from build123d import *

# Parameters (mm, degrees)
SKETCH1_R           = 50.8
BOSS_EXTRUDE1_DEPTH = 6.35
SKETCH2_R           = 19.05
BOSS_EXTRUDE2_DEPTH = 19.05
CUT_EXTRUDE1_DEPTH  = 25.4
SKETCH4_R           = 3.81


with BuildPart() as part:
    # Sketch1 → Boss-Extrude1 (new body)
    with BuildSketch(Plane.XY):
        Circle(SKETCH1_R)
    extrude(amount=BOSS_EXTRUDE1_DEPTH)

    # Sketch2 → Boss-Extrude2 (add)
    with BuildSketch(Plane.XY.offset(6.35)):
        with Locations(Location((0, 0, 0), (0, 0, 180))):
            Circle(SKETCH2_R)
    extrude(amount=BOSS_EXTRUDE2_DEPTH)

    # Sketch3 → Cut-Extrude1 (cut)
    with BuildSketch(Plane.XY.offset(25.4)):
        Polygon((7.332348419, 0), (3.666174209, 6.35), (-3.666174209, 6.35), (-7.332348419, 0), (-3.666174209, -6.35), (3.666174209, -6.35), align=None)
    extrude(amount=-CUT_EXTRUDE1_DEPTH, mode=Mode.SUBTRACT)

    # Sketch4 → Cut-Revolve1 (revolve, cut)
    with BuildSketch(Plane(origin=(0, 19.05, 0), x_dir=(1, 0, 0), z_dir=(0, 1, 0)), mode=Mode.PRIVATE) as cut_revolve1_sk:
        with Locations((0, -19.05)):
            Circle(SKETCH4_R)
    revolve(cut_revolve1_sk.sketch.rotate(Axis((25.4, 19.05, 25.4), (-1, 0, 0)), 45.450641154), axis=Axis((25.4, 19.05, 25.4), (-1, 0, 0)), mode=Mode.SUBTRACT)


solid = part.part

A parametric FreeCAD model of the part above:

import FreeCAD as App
import Part
import Sketcher
Q = App.Units.Quantity


def add_polygon(sketch, points):
    """Adds a closed chain of lines whose ends are joined by coincident constraints."""
    first, n = sketch.GeometryCount, len(points)
    for a, b in zip(points, points[1:] + points[:1]):
        sketch.addGeometry(Part.LineSegment(App.Vector(*a, 0), App.Vector(*b, 0)), False)
    for i in range(n):
        sketch.addConstraint(Sketcher.Constraint("Coincident", first + i, 2, first + (i + 1) % n, 1))

doc = App.newDocument("Part")
body = doc.addObject("PartDesign::Body", "Body")

# Sketch on XY plane
sketch1 = doc.addObject("Sketcher::SketchObject", "Sketch")
body.addObject(sketch1)
sketch1.AttachmentSupport = (doc.XY_Plane, [""])
sketch1.MapMode = "FlatFace"
sketch1.addGeometry(Part.Circle(App.Vector(0, 0, 0), App.Vector(0, 0, 1), 50.8), False)
sketch1.addConstraint(Sketcher.Constraint("Coincident", 0, 3, -1, 1))
sketch1.addConstraint(Sketcher.Constraint("Diameter", 0, Q("4 in")))
pad1 = doc.addObject("PartDesign::Pad", "Pad")
body.addObject(pad1)
pad1.Profile = sketch1
pad1.Length = Q("0.25 in")

# Sketch on XY plane
sketch2 = doc.addObject("Sketcher::SketchObject", "Sketch001")
body.addObject(sketch2)
sketch2.AttachmentSupport = (doc.XY_Plane, [""])
sketch2.MapMode = "FlatFace"
sketch2.AttachmentOffset = App.Placement(App.Vector(0, 0, 0.25 * 25.4), App.Rotation())
sketch2.addGeometry(Part.Circle(App.Vector(0, 0, 0), App.Vector(0, 0, 1), 19.05), False)
sketch2.addConstraint(Sketcher.Constraint("Coincident", 0, 3, -1, 1))
sketch2.addConstraint(Sketcher.Constraint("Diameter", 0, Q("1.5 in")))
pad2 = doc.addObject("PartDesign::Pad", "Pad001")
body.addObject(pad2)
pad2.Profile = sketch2
pad2.Length = Q("0.75 in")

# Sketch on XY plane
sketch3 = doc.addObject("Sketcher::SketchObject", "Sketch002")
body.addObject(sketch3)
sketch3.AttachmentSupport = (doc.XY_Plane, [""])
sketch3.MapMode = "FlatFace"
sketch3.AttachmentOffset = App.Placement(App.Vector(0, 0, 1 * 25.4), App.Rotation())
add_polygon(sketch3, [(7.332348, 0), (3.666174, 6.35), (-3.666174, 6.35), (-7.332348, 0), (-3.666174, -6.35), (3.666174, -6.35)])  # lines 0-5
sketch3.addConstraint(Sketcher.Constraint("Horizontal", 1))
sketch3.addConstraint(Sketcher.Constraint("Horizontal", 4))
sketch3.addConstraint(Sketcher.Constraint("Symmetric", 0, 2, 3, 2, -1, 1))
sketch3.addConstraint(Sketcher.Constraint("Symmetric", 2, 2, 5, 2, -1, 1))
sketch3.addConstraint(Sketcher.Constraint("PointOnObject", 2, 2, -1))
sketch3.addConstraint(Sketcher.Constraint("Parallel", 2, 5))
sketch3.addConstraint(Sketcher.Constraint("Vertical", 1, 2, 3, 2))
sketch3.addConstraint(Sketcher.Constraint("Angle", 0, Q("120 deg")))
sketch3.addConstraint(Sketcher.Constraint("DistanceY", 3, 2, 1, 2, Q("0.5 in")))
sketch3.addConstraint(Sketcher.Constraint("DistanceX", 1, 2, 1, 1, 7.332348))
pocket1 = doc.addObject("PartDesign::Pocket", "Pocket")
body.addObject(pocket1)
pocket1.Profile = sketch3
pocket1.Length = Q("1 in")

# Sketch on XZ plane
sketch4 = doc.addObject("Sketcher::SketchObject", "Sketch003")
body.addObject(sketch4)
sketch4.AttachmentSupport = (doc.XZ_Plane, [""])
sketch4.MapMode = "FlatFace"
sketch4.AttachmentOffset = App.Placement(App.Vector(0, 0, -0.75 * 25.4), App.Rotation())
sketch4.addGeometry(Part.Circle(App.Vector(0, 19.05, 0), App.Vector(0, 0, 1), 3.81), False)
sketch4.addGeometry(Part.LineSegment(App.Vector(0, 25.4, 0), App.Vector(-10, 25.4, 0)), True)  # axis
sketch4.addConstraint(Sketcher.Constraint("Horizontal", 1))
sketch4.addConstraint(Sketcher.Constraint("PointOnObject", 0, 3, -2))
sketch4.addConstraint(Sketcher.Constraint("PointOnObject", 1, 1, -2))
sketch4.addConstraint(Sketcher.Constraint("Diameter", 0, Q("0.3 in")))
sketch4.addConstraint(Sketcher.Constraint("DistanceY", -1, 1, 1, 1, Q("1 in")))
sketch4.addConstraint(Sketcher.Constraint("DistanceY", -1, 1, 0, 3, Q("0.75 in")))
sketch4.addConstraint(Sketcher.Constraint("DistanceX", 1, 2, 1, 1, 10.0))
groove = doc.addObject("PartDesign::Groove", "Groove")
body.addObject(groove)
groove.Profile = sketch4
groove.ReferenceAxis = (sketch4, ["Axis0"])
groove.Angle = 360

doc.recompute()
